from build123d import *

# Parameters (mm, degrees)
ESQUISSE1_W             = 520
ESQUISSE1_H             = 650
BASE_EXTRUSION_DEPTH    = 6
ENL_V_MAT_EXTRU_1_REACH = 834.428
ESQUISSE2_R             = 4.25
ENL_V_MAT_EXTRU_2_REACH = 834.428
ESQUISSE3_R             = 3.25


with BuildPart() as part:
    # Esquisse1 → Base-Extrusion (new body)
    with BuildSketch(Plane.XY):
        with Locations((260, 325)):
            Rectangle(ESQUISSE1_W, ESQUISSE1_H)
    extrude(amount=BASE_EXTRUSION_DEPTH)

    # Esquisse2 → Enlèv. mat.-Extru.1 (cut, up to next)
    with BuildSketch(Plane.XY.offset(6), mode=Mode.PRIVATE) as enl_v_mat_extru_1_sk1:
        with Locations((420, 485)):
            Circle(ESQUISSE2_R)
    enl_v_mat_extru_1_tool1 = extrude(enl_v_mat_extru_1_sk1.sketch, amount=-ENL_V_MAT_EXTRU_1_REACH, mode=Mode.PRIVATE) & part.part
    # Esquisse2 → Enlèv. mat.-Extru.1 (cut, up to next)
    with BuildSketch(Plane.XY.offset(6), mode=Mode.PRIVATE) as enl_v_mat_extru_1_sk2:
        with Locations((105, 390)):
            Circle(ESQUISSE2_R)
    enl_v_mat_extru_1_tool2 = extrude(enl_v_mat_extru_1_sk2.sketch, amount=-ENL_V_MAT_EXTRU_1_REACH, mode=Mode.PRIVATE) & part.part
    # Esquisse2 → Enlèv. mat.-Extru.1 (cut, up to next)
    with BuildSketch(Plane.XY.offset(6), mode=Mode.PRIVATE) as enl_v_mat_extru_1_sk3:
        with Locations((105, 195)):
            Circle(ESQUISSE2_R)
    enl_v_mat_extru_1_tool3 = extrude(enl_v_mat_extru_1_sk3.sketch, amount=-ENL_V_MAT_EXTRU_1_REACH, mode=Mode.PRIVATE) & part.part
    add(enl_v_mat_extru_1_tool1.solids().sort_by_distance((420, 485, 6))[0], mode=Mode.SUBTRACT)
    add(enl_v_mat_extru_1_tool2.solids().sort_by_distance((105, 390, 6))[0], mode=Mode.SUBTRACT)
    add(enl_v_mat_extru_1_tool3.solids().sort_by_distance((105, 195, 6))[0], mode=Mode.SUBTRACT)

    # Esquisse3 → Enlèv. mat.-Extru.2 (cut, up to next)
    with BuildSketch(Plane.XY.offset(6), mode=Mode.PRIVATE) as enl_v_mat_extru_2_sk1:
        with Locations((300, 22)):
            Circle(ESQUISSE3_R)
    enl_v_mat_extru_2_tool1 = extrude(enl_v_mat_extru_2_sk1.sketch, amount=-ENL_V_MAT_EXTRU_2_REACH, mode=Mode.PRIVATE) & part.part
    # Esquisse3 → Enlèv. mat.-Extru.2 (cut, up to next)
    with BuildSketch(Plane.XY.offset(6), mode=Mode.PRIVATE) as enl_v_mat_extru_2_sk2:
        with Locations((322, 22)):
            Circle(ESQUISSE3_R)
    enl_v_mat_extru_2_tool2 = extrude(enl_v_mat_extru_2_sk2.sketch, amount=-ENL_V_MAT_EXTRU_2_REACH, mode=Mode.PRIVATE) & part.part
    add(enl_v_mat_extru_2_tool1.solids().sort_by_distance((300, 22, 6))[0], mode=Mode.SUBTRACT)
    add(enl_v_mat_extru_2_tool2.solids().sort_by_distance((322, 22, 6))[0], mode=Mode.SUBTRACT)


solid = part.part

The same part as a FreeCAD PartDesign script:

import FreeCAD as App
import Part
import Sketcher

V = App.Vector


def add_polygon(sketch, points):
    """Adds a closed chain of lines whose ends are joined by coincident constraints."""
    first, n = sketch.GeometryCount, len(points)
    for a, b in zip(points, points[1:] + points[:1]):
        sketch.addGeometry(Part.LineSegment(App.Vector(*a, 0), App.Vector(*b, 0)), False)
    for i in range(n):
        sketch.addConstraint(Sketcher.Constraint("Coincident", first + i, 2, first + (i + 1) % n, 1))

doc = App.newDocument("Part")
params = doc.addObject("Spreadsheet::Sheet", "Params")
for row, (alias, value) in enumerate([
    ("sketch1_width", "520 mm"),
    ("sketch1_height", "650 mm"),
    ("pad1_length", "6 mm"),
    ("sketch2_diameter", "8.5 mm"),
    ("sketch3_diameter", "8.5 mm"),
    ("sketch4_diameter", "8.5 mm"),
    ("sketch5_diameter", "6.5 mm"),
    ("sketch6_diameter", "6.5 mm"),
], start=1):
    params.set(f"A{row}", alias)
    params.set(f"B{row}", "=" + value)
    params.setAlias(f"B{row}", alias)

body = doc.addObject("PartDesign::Body", "Body")

# Sketch on XY plane
sketch1 = doc.addObject("Sketcher::SketchObject", "Sketch")
body.addObject(sketch1)
sketch1.AttachmentSupport = (doc.XY_Plane, [""])
sketch1.MapMode = "FlatFace"
add_polygon(sketch1, [(0, 650), (0, 0), (520, 0), (520, 650)])  # lines 0-3
sketch1.addConstraint([
    Sketcher.Constraint("Vertical", 0),
    Sketcher.Constraint("Horizontal", 1),
    Sketcher.Constraint("Vertical", 2),
    Sketcher.Constraint("Horizontal", 3),
    Sketcher.Constraint("Coincident", 0, 2, -1, 1),
    Sketcher.Constraint("DistanceX", 1, 1, 1, 2, 520.0),
    Sketcher.Constraint("DistanceY", 0, 2, 0, 1, 650.0),
])
sketch1.setExpression("Constraints[9]", "Params.sketch1_width")
sketch1.setExpression("Constraints[10]", "Params.sketch1_height")
pad1 = doc.addObject("PartDesign::Pad", "Pad")
body.addObject(pad1)
pad1.Profile = sketch1
pad1.setExpression("Length", "Params.pad1_length")

# Sketch on XY plane
sketch2 = doc.addObject("Sketcher::SketchObject", "Sketch001")
body.addObject(sketch2)
sketch2.AttachmentSupport = (doc.XY_Plane, [""])
sketch2.MapMode = "FlatFace"
sketch2.AttachmentOffset = App.Placement(V(0, 0, 6), App.Rotation())
sketch2.addGeometry(Part.Circle(V(420, 485, 0), V(0, 0, 1), 4.2), False)
sketch2.addConstraint([
    Sketcher.Constraint("Diameter", 0, 8.5),
    Sketcher.Constraint("DistanceX", -1, 1, 0, 3, 420.0),
    Sketcher.Constraint("DistanceY", -1, 1, 0, 3, 485.0),
])
sketch2.setExpression("Constraints[0]", "Params.sketch2_diameter")
pocket1 = doc.addObject("PartDesign::Pocket", "Pocket")
body.addObject(pocket1)
pocket1.Profile = sketch2
pocket1.Type = "UpToFirst"

# Sketch on XY plane
sketch3 = doc.addObject("Sketcher::SketchObject", "Sketch002")
body.addObject(sketch3)
sketch3.AttachmentSupport = (doc.XY_Plane, [""])
sketch3.MapMode = "FlatFace"
sketch3.AttachmentOffset = App.Placement(V(0, 0, 6), App.Rotation())
sketch3.addGeometry(Part.Circle(V(105, 390, 0), V(0, 0, 1), 4.2), False)
sketch3.addConstraint([
    Sketcher.Constraint("Diameter", 0, 8.5),
    Sketcher.Constraint("DistanceX", -1, 1, 0, 3, 105.0),
    Sketcher.Constraint("DistanceY", -1, 1, 0, 3, 390.0),
])
sketch3.setExpression("Constraints[0]", "Params.sketch3_diameter")
pocket2 = doc.addObject("PartDesign::Pocket", "Pocket001")
body.addObject(pocket2)
pocket2.Profile = sketch3
pocket2.Type = "UpToFirst"

# Sketch on XY plane
sketch4 = doc.addObject("Sketcher::SketchObject", "Sketch003")
body.addObject(sketch4)
sketch4.AttachmentSupport = (doc.XY_Plane, [""])
sketch4.MapMode = "FlatFace"
sketch4.AttachmentOffset = App.Placement(V(0, 0, 6), App.Rotation())
sketch4.addGeometry(Part.Circle(V(105, 195, 0), V(0, 0, 1), 4.2), False)
sketch4.addConstraint([
    Sketcher.Constraint("Diameter", 0, 8.5),
    Sketcher.Constraint("DistanceX", -1, 1, 0, 3, 105.0),
    Sketcher.Constraint("DistanceY", -1, 1, 0, 3, 195.0),
])
sketch4.setExpression("Constraints[0]", "Params.sketch4_diameter")
pocket3 = doc.addObject("PartDesign::Pocket", "Pocket002")
body.addObject(pocket3)
pocket3.Profile = sketch4
pocket3.Type = "UpToFirst"

# Sketch on XY plane
sketch5 = doc.addObject("Sketcher::SketchObject", "Sketch004")
body.addObject(sketch5)
sketch5.AttachmentSupport = (doc.XY_Plane, [""])
sketch5.MapMode = "FlatFace"
sketch5.AttachmentOffset = App.Placement(V(0, 0, 6), App.Rotation())
sketch5.addGeometry(Part.Circle(V(300, 22, 0), V(0, 0, 1), 3.2), False)
sketch5.addConstraint([
    Sketcher.Constraint("Diameter", 0, 6.5),
    Sketcher.Constraint("DistanceX", -1, 1, 0, 3, 300.0),
    Sketcher.Constraint("DistanceY", -1, 1, 0, 3, 22.0),
])
sketch5.setExpression("Constraints[0]", "Params.sketch5_diameter")
pocket4 = doc.addObject("PartDesign::Pocket", "Pocket003")
body.addObject(pocket4)
pocket4.Profile = sketch5
pocket4.Type = "UpToFirst"

# Sketch on XY plane
sketch6 = doc.addObject("Sketcher::SketchObject", "Sketch005")
body.addObject(sketch6)
sketch6.AttachmentSupport = (doc.XY_Plane, [""])
sketch6.MapMode = "FlatFace"
sketch6.AttachmentOffset = App.Placement(V(0, 0, 6), App.Rotation())
sketch6.addGeometry(Part.Circle(V(322, 22, 0), V(0, 0, 1), 3.2), False)
sketch6.addConstraint([
    Sketcher.Constraint("Diameter", 0, 6.5),
    Sketcher.Constraint("DistanceX", -1, 1, 0, 3, 322.0),
    Sketcher.Constraint("DistanceY", -1, 1, 0, 3, 22.0),
])
sketch6.setExpression("Constraints[0]", "Params.sketch6_diameter")
pocket5 = doc.addObject("PartDesign::Pocket", "Pocket004")
body.addObject(pocket5)
pocket5.Profile = sketch6
pocket5.Type = "UpToFirst"

doc.recompute()
